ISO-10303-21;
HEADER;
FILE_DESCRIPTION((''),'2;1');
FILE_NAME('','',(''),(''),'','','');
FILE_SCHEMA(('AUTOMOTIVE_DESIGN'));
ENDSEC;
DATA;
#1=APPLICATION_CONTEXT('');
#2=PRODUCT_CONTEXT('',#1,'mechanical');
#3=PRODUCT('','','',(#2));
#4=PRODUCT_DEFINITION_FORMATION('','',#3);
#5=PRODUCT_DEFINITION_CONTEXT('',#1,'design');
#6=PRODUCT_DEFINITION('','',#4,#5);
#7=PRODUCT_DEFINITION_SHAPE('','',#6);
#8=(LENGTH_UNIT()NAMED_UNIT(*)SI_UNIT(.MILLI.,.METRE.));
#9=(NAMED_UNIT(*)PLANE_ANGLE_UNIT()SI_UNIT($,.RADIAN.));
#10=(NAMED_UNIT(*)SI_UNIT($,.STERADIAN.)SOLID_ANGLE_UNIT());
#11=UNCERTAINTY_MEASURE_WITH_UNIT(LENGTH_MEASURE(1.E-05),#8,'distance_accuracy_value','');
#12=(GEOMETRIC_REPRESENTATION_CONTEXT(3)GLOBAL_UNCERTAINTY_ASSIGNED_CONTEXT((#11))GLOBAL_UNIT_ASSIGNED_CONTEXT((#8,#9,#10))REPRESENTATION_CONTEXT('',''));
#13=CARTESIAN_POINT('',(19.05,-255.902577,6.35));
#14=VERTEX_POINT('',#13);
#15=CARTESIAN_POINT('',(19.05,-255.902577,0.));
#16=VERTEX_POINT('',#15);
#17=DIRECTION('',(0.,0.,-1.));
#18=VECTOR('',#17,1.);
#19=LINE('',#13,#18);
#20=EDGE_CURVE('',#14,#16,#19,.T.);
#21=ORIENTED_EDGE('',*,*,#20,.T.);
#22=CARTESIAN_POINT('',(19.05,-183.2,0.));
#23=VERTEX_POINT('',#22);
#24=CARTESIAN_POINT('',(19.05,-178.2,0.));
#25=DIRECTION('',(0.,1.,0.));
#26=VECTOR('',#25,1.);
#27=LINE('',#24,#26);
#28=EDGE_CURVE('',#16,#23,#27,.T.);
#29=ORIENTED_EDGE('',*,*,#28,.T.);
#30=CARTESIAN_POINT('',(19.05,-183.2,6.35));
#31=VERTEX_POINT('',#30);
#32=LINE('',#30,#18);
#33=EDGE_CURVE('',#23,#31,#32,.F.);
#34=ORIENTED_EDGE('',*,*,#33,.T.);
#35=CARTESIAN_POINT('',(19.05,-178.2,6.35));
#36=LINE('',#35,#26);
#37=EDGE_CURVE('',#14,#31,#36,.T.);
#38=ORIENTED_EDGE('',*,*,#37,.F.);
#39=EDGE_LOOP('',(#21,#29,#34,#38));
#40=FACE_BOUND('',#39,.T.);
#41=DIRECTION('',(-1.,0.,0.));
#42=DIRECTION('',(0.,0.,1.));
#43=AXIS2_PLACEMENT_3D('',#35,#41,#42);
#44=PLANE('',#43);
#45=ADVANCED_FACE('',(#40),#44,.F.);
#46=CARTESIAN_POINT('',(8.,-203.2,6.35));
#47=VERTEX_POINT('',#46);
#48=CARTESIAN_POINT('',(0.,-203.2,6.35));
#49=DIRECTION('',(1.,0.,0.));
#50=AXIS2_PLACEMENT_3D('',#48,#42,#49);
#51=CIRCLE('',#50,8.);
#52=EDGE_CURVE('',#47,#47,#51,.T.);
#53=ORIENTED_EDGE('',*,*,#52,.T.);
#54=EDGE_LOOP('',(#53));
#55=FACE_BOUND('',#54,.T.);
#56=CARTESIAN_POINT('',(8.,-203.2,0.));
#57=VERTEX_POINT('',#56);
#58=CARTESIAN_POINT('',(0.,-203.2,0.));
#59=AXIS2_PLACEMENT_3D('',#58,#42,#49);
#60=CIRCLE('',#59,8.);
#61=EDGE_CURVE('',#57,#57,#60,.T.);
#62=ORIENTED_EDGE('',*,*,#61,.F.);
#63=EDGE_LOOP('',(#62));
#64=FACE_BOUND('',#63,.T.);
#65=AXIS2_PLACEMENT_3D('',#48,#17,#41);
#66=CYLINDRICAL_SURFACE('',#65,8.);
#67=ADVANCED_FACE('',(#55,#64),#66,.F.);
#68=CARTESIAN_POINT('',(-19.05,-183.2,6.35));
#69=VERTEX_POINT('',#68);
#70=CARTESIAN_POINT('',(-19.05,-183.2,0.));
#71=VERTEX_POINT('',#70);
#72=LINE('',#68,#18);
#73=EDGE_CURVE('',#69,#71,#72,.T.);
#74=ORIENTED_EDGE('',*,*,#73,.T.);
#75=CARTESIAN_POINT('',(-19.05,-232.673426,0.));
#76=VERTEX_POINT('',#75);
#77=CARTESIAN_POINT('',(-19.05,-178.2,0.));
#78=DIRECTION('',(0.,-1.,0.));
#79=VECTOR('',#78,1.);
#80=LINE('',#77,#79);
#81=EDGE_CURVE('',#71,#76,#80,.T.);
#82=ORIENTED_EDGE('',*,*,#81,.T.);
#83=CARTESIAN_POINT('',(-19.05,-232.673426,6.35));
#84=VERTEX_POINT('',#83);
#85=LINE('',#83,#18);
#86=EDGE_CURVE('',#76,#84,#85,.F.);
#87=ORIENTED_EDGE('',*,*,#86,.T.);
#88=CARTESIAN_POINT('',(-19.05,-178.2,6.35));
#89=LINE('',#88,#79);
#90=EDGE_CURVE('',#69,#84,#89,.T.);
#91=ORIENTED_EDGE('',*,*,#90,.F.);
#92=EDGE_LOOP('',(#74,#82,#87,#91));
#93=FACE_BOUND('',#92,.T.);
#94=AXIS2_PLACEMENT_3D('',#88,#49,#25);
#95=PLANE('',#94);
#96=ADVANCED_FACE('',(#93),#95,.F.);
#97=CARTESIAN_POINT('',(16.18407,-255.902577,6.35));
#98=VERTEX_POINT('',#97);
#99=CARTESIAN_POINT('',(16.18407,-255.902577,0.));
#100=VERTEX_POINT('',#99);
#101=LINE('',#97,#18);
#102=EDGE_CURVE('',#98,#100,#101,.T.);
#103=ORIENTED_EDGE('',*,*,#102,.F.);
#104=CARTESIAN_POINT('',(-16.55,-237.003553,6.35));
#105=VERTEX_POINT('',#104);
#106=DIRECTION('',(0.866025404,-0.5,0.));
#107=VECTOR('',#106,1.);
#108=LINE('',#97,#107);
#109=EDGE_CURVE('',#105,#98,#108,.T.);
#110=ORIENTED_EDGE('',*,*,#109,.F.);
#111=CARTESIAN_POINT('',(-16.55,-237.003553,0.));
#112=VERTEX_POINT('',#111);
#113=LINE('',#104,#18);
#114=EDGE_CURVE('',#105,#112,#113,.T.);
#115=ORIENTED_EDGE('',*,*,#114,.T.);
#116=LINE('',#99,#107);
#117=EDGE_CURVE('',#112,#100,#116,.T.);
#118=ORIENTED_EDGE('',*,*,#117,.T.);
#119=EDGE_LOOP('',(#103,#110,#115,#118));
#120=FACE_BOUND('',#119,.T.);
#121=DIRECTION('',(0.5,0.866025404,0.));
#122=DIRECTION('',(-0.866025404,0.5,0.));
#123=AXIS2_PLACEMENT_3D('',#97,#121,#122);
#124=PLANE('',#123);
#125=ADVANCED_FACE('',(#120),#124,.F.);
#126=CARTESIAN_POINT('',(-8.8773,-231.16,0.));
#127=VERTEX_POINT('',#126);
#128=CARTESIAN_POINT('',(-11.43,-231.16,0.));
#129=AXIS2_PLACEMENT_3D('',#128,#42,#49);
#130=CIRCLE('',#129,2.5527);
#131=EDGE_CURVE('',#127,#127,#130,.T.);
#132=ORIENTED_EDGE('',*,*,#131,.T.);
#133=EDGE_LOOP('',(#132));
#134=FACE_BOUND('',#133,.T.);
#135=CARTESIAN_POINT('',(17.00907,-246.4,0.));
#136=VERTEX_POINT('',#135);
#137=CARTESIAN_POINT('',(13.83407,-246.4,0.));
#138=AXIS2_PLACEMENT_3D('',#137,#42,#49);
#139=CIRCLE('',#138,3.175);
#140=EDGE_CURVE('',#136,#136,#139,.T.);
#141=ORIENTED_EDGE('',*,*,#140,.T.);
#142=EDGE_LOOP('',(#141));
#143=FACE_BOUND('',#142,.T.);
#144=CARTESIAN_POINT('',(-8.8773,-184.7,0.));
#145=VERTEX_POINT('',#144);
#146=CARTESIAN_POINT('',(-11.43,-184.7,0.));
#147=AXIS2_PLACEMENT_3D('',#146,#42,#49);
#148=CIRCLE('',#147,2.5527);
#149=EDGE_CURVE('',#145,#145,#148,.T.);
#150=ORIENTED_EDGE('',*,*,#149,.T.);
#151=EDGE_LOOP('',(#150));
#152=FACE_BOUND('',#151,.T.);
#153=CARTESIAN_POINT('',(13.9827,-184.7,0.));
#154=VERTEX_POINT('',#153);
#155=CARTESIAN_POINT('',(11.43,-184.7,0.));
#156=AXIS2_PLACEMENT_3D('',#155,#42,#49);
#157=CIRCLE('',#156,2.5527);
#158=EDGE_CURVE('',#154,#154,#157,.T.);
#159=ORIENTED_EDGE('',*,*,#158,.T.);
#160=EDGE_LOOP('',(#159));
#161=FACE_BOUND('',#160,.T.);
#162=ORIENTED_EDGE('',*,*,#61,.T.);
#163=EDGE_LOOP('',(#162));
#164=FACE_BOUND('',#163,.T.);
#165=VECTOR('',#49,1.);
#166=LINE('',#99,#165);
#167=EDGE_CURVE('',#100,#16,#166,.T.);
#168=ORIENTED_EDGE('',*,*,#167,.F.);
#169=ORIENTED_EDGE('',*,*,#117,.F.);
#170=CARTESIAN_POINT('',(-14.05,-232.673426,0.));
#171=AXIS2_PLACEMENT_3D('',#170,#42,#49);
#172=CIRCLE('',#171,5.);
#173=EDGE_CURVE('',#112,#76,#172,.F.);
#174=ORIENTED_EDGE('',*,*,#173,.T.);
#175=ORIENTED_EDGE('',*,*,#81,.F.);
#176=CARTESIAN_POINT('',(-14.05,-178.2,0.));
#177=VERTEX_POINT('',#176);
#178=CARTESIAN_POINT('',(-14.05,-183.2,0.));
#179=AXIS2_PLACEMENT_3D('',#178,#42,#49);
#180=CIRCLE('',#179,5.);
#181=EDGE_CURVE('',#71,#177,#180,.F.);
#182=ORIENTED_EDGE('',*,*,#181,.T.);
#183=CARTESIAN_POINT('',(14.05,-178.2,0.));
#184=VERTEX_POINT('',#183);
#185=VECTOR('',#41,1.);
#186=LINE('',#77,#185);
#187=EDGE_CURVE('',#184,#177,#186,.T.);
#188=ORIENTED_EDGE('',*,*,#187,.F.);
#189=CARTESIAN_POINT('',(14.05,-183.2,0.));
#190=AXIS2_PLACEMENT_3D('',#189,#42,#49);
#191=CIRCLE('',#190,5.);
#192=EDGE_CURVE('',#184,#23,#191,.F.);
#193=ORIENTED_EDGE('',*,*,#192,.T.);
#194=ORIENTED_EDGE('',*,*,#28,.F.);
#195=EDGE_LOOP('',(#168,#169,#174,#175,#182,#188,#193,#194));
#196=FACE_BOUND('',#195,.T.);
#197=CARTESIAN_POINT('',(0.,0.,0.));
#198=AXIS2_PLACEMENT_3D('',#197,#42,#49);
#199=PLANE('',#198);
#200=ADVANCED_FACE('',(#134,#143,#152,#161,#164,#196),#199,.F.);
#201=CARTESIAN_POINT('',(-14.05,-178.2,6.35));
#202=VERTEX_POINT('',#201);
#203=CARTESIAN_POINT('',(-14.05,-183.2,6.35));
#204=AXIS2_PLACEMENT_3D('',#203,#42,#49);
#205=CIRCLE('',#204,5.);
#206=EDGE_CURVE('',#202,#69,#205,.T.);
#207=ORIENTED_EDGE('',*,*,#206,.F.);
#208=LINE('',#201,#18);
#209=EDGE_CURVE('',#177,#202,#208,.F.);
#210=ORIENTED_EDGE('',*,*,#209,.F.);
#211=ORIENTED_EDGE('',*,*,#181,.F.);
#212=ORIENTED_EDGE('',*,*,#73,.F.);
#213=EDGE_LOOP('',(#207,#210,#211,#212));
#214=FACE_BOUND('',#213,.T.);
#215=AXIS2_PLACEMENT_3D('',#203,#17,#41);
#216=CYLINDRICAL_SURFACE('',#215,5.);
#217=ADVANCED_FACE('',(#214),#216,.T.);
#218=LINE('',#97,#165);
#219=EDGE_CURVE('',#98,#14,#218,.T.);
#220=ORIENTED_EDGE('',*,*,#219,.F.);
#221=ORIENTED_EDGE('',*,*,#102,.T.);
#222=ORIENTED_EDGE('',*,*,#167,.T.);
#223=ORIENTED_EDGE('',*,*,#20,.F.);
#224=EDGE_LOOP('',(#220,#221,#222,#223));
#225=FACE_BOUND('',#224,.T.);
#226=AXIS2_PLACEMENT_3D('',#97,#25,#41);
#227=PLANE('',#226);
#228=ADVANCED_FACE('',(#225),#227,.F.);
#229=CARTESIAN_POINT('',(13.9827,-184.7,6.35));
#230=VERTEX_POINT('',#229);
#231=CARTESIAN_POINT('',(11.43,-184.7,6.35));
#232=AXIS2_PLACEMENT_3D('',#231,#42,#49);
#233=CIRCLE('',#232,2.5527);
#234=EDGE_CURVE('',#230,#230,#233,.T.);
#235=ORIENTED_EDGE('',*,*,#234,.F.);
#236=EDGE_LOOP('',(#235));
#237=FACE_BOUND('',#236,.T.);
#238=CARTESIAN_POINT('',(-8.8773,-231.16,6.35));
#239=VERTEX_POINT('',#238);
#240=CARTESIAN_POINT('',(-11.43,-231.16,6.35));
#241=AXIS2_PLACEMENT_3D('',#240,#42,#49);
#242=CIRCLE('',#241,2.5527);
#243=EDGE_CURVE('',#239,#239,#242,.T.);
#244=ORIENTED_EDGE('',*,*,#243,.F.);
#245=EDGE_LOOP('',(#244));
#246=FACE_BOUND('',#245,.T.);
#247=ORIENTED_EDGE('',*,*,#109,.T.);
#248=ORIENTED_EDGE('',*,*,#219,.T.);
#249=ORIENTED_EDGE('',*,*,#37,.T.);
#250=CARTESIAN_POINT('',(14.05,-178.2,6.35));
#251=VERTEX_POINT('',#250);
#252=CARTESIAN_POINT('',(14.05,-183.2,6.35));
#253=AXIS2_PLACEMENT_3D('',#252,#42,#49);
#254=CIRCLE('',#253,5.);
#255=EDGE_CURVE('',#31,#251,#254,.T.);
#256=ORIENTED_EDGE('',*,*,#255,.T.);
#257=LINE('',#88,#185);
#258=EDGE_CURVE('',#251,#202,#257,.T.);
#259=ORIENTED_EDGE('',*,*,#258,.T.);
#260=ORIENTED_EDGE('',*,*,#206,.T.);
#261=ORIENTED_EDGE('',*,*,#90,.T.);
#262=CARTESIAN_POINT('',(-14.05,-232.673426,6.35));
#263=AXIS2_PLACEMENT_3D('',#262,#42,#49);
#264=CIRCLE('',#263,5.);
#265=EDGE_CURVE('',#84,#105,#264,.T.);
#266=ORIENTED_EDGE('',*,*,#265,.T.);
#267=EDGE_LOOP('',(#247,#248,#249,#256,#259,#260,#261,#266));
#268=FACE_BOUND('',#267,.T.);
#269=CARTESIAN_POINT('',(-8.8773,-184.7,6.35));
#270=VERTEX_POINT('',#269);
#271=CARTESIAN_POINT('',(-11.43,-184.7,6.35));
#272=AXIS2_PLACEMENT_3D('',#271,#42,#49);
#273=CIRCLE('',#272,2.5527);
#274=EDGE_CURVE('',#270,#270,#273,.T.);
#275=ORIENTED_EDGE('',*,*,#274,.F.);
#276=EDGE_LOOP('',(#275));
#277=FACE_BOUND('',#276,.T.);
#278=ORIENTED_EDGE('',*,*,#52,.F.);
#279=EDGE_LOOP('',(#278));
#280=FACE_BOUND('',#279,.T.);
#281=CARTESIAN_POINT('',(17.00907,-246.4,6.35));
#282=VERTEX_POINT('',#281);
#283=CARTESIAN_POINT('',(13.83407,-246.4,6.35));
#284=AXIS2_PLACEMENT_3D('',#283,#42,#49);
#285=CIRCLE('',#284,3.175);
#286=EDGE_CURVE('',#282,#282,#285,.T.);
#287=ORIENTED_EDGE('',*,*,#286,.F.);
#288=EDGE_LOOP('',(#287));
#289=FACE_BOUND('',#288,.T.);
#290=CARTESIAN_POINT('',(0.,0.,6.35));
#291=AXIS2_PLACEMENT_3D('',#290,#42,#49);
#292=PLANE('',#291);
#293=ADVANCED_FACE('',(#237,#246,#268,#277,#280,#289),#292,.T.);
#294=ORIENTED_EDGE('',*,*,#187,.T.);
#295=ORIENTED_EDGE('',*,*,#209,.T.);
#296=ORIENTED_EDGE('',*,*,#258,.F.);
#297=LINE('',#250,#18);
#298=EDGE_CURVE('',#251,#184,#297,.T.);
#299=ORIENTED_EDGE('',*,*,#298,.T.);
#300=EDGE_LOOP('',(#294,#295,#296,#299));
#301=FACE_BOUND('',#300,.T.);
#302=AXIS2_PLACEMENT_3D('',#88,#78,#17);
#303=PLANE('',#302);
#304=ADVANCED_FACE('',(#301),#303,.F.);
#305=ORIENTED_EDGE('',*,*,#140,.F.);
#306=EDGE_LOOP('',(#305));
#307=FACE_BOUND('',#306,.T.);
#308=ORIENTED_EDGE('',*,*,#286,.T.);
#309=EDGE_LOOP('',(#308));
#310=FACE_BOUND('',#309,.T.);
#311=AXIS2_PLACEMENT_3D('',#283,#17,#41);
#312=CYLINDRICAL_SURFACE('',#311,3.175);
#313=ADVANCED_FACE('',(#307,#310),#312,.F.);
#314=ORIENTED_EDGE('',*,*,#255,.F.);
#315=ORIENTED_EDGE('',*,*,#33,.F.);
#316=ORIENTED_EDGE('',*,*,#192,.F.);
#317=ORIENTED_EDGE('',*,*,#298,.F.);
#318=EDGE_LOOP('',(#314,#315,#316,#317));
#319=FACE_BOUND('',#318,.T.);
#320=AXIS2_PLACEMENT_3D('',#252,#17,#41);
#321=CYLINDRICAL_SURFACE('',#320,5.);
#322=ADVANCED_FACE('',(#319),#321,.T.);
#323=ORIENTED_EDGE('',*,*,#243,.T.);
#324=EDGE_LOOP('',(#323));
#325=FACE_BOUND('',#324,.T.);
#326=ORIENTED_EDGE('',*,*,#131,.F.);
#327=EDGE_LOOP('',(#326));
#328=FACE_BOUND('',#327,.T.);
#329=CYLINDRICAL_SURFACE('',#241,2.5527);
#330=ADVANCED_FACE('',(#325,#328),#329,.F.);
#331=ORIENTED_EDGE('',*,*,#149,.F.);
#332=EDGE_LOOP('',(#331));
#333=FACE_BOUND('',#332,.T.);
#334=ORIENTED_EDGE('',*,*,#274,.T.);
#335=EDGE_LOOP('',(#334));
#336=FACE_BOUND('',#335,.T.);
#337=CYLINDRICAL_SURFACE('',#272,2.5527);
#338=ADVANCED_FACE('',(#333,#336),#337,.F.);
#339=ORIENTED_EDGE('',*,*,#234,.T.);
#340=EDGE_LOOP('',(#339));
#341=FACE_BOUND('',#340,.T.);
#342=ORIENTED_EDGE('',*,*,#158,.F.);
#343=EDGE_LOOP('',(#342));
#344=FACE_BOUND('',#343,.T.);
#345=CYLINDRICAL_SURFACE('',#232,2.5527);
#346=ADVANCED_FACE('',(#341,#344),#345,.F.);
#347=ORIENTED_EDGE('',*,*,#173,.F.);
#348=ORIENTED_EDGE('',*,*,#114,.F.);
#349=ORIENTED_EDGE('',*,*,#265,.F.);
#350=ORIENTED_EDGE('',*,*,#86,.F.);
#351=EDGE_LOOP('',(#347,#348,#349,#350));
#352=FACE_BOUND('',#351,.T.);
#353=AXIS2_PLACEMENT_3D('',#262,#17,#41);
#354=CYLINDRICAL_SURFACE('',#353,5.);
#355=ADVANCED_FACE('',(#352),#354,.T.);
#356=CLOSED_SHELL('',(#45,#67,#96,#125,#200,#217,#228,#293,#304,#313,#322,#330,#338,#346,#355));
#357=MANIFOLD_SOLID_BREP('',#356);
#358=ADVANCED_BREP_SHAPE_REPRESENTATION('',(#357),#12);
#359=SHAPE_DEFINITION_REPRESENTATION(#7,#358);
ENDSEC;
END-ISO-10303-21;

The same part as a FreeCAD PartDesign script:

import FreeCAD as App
import Part
import Sketcher
from FreeCAD import Vector
Q = App.Units.Quantity


def edges_at(feature, points):
    """Names of the edges that pass closest to the given points."""
    edges = feature.Shape.Edges
    near = lambda p: min(range(len(edges)), key=lambda i: edges[i].distToShape(Part.Vertex(*p))[0])
    return sorted({f"Edge{near(p) + 1}" for p in points})


def add_polygon(sketch, points):
    """Adds a closed chain of lines whose ends are joined by coincident constraints."""
    first, n = sketch.GeometryCount, len(points)
    for a, b in zip(points, points[1:] + points[:1]):
        sketch.addGeometry(Part.LineSegment(App.Vector(*a, 0), App.Vector(*b, 0)), False)
    for i in range(n):
        sketch.addConstraint(Sketcher.Constraint("Coincident", first + i, 2, first + (i + 1) % n, 1))

doc = App.newDocument("Part")
body = doc.addObject("PartDesign::Body", "Body")

# Sketch on XY plane
sketch1 = doc.addObject("Sketcher::SketchObject", "Sketch")
body.addObject(sketch1)
sketch1.AttachmentSupport = (doc.XY_Plane, [""])
sketch1.MapMode = "FlatFace"
add_polygon(sketch1, [(-19.05, -235.560177), (16.18407, -255.902577), (19.05, -255.902577), (19.05, -178.2), (-19.05, -178.2)])  # lines 0-4
sketch1.addGeometry(Part.Circle(Vector(13.83407, -246.4, 0), Vector(0, 0, 1), 3.175), False)  # 5
sketch1.addGeometry(Part.Circle(Vector(0, -203.2, 0), Vector(0, 0, 1), 8), False)  # 6
sketch1.addConstraint(Sketcher.Constraint("Horizontal", 1))
sketch1.addConstraint(Sketcher.Constraint("Vertical", 2))
sketch1.addConstraint(Sketcher.Constraint("Horizontal", 3))
sketch1.addConstraint(Sketcher.Constraint("Vertical", 4))
sketch1.addConstraint(Sketcher.Constraint("PointOnObject", 6, 3, -2))
sketch1.addConstraint(Sketcher.Constraint("Diameter", 5, Q("0.25 in")))
sketch1.addConstraint(Sketcher.Constraint("DistanceX", 3, 2, 3, 1, Q("1.5 in")))
sketch1.addConstraint(Sketcher.Constraint("DistanceY", 6, 3, -1, 1, Q("8 in")))
sketch1.addConstraint(Sketcher.Constraint("Angle", 0, Q("-30 deg")))
sketch1.addConstraint(Sketcher.Constraint("Diameter", 6, 16.0))
sketch1.addConstraint(Sketcher.Constraint("DistanceX", -1, 1, 1, 2, Q("0.75 in")))
sketch1.addConstraint(Sketcher.Constraint("Distance", 0, 40.6848))
sketch1.addConstraint(Sketcher.Constraint("DistanceY", 5, 3, -1, 1, 246.4))
sketch1.addConstraint(Sketcher.Constraint("DistanceY", 2, 2, -1, 1, 178.2))
sketch1.addConstraint(Sketcher.Constraint("DistanceX", 5, 3, 0, 2, 2.35))
sketch1.addConstraint(Sketcher.Constraint("DistanceY", 2, 1, 2, 2, 77.702577))
pad1 = doc.addObject("PartDesign::Pad", "Pad")
body.addObject(pad1)
pad1.Profile = sketch1
pad1.Length = Q("0.25 in")
doc.recompute()

fillet = doc.addObject("PartDesign::Fillet", "Fillet")
body.addObject(fillet)
fillet.Base = (pad1, edges_at(pad1, [(-19.05, -235.56, 3.175), (-19.05, -178.2, 3.175), (19.05, -178.2, 3.175)]))
fillet.Radius = 5

# Sketch on XY plane
sketch2 = doc.addObject("Sketcher::SketchObject", "Sketch001")
body.addObject(sketch2)
sketch2.AttachmentSupport = (doc.XY_Plane, [""])
sketch2.MapMode = "FlatFace"
sketch2.AttachmentOffset = App.Placement(Vector(0, 0, 0.25 * 25.4), App.Rotation())
sketch2.addGeometry(Part.Circle(Vector(-11.43, -184.7, 0), Vector(0, 0, 1), 2.5527), False)
sketch2.addGeometry(Part.Circle(Vector(-11.43, -231.16, 0), Vector(0, 0, 1), 2.5527), False)
sketch2.addGeometry(Part.Circle(Vector(11.43, -184.7, 0), Vector(0, 0, 1), 2.5527), False)
sketch2.addConstraint(Sketcher.Constraint("Equal", 0, 1))
sketch2.addConstraint(Sketcher.Constraint("Equal", 1, 2))
sketch2.addConstraint(Sketcher.Constraint("Symmetric", 0, 3, 2, 3, -2))
sketch2.addConstraint(Sketcher.Constraint("Vertical", 0, 3, 1, 3))
sketch2.addConstraint(Sketcher.Constraint("Diameter", 0, Q("0.201 in")))
sketch2.addConstraint(Sketcher.Constraint("DistanceX", 0, 3, 2, 3, Q("0.9 in")))
sketch2.addConstraint(Sketcher.Constraint("DistanceY", 0, 3, -1, 1, 184.7))
sketch2.addConstraint(Sketcher.Constraint("DistanceY", 1, 3, -1, 1, 231.16))
doc.recompute()
hole = doc.addObject("PartDesign::Hole", "Hole")
body.addObject(hole)
hole.Profile = sketch2
hole.ThreadType = "None"
hole.Diameter = Q("0.201 in")
hole.DepthType = "Dimension"
hole.Depth = Q("0.75 in")
hole.DrillPoint = "Angled"
hole.DrillPointAngle = 118

doc.recompute()
